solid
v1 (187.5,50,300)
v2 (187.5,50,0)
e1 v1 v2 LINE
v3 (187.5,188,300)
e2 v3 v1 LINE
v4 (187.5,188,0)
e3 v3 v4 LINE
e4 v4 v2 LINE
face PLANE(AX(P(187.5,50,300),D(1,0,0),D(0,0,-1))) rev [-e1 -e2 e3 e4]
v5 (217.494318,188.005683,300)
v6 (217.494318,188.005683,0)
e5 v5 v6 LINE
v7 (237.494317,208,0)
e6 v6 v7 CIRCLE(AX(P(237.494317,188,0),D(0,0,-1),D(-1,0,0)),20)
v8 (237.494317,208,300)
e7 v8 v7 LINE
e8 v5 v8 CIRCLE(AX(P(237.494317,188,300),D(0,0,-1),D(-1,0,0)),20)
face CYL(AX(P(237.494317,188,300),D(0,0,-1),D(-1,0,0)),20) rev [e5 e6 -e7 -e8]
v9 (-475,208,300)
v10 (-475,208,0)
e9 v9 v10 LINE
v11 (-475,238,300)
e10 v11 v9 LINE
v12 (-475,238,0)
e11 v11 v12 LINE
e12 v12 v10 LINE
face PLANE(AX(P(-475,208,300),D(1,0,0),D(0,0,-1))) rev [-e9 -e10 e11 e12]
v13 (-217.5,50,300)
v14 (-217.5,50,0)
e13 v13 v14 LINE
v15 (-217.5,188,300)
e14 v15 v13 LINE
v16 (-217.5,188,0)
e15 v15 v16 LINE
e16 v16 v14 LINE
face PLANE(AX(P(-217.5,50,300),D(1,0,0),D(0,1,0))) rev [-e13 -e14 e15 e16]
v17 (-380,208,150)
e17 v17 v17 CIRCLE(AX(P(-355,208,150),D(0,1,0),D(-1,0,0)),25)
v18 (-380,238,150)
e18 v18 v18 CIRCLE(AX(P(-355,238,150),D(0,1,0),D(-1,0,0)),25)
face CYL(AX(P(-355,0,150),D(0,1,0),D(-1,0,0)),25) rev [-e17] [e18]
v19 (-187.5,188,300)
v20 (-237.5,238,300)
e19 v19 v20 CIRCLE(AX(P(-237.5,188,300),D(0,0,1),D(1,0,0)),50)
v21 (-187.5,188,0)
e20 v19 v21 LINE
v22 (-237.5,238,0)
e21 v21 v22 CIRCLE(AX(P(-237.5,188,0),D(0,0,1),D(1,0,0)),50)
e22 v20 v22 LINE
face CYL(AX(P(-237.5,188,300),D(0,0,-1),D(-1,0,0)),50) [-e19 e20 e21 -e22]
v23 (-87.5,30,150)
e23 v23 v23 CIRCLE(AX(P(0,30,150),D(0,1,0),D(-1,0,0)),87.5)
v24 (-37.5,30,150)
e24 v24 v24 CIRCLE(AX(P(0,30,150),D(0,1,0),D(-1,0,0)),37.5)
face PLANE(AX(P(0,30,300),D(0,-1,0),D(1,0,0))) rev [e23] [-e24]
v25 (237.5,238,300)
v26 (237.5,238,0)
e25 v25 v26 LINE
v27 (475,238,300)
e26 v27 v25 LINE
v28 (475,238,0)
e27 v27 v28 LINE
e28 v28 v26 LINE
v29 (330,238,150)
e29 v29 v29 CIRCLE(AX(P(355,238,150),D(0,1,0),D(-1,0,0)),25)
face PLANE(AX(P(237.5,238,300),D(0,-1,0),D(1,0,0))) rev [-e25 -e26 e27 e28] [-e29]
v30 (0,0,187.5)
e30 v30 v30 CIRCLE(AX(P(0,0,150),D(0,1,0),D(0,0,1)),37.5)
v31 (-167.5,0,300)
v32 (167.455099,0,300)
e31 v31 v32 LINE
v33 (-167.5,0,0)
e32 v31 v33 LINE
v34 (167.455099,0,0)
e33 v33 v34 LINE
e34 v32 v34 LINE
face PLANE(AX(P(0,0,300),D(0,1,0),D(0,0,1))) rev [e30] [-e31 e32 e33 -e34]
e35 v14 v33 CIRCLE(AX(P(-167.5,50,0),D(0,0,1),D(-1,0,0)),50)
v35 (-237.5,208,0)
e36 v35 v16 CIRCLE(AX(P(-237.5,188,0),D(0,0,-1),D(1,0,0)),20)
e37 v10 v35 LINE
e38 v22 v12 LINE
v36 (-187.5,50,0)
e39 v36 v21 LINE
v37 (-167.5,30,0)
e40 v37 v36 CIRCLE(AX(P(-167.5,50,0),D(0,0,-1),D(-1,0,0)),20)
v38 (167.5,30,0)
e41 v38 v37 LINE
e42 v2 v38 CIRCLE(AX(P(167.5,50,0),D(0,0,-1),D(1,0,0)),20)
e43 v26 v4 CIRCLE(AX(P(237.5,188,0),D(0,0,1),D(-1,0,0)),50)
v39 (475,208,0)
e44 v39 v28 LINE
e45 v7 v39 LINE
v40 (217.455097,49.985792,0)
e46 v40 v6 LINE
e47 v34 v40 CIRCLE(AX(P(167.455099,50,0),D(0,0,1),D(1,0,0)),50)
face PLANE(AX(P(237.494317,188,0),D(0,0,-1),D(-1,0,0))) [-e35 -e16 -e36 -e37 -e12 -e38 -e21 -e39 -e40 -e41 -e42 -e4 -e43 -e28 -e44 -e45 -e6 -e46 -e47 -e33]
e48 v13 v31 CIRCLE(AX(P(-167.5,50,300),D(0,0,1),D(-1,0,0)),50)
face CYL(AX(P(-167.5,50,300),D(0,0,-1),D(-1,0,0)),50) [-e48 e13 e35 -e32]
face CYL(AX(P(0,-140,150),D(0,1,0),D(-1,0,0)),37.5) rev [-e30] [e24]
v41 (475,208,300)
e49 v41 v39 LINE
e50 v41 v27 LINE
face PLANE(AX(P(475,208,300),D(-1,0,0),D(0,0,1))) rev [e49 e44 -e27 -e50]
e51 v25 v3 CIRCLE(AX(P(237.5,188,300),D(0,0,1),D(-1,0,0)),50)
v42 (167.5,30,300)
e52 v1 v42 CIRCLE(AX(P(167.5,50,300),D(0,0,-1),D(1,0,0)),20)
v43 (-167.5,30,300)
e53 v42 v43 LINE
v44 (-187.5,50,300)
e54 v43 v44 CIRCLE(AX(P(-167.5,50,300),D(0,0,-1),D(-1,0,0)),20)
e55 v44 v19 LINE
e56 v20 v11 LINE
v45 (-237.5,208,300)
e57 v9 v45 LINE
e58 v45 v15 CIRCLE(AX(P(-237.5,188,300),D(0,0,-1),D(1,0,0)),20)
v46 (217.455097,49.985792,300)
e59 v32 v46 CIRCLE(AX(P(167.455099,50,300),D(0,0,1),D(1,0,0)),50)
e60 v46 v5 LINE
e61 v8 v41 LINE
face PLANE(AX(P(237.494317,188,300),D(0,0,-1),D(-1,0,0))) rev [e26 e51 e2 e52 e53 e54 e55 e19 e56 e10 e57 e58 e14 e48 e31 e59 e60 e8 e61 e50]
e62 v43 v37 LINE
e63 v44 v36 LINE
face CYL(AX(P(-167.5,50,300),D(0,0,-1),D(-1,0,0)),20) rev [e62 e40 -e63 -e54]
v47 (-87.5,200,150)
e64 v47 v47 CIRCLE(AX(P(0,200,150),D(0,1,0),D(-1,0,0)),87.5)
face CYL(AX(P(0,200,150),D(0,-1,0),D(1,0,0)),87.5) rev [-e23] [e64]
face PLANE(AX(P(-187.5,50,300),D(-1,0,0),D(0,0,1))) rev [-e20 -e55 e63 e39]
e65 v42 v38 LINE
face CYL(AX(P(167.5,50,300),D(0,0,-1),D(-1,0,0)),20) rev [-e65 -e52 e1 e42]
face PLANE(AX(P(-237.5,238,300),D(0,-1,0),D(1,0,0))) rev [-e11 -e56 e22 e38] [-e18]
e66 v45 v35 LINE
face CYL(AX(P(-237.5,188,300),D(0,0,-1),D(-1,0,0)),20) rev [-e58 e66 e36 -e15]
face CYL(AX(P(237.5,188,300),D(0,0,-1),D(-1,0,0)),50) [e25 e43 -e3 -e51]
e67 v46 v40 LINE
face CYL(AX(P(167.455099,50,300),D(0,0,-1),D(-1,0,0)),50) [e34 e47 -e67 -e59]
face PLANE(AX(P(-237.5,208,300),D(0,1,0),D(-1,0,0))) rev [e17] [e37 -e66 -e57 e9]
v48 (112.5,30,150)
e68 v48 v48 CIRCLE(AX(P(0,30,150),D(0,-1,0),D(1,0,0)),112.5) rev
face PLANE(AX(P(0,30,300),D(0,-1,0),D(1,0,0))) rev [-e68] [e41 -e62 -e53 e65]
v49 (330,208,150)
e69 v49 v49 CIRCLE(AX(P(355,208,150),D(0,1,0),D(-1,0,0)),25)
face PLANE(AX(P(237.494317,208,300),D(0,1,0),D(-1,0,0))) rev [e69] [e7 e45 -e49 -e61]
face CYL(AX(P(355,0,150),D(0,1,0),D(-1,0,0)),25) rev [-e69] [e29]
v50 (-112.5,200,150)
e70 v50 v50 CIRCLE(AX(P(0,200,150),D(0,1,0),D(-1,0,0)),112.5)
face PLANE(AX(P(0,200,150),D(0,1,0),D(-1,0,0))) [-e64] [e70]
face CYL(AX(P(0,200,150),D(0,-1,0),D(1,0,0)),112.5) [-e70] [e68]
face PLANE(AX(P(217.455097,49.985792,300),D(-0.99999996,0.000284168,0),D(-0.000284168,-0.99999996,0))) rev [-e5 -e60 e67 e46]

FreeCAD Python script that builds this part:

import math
import FreeCAD as App
import Part
import Sketcher
from FreeCAD import Vector
Q = App.Units.Quantity

doc = App.newDocument("Part")
body = doc.addObject("PartDesign::Body", "Body")

# Sketch on XY plane
sketch1 = body.newObject("Sketcher::SketchObject", "Sketch")
sketch1.AttachmentSupport = (doc.getObject("XY_Plane"), [""])
sketch1.MapMode = "FlatFace"
sketch1.addGeometry([
    Part.ArcOfCircle(Part.Circle(Vector(-167.5, 50, 0), Vector(0, 0, 1), 50), math.radians(-180), math.radians(-90)),  # 0
    Part.LineSegment(Vector(-167.5, 0, 0), Vector(167.455099, 0, 0)),  # 1
    Part.ArcOfCircle(Part.Circle(Vector(167.455099, 50, 0), Vector(0, 0, 1), 50), math.radians(-90), math.radians(-0.016282)),  # 2
    Part.LineSegment(Vector(217.455097, 49.985792, 0), Vector(217.494318, 188.005683, 0)),  # 3
    Part.ArcOfCircle(Part.Circle(Vector(237.494317, 188, 0), Vector(0, 0, 1), 20), math.radians(90), math.radians(179.983718)),  # 4
    Part.LineSegment(Vector(237.494317, 208, 0), Vector(475, 208, 0)),  # 5
    Part.LineSegment(Vector(475, 208, 0), Vector(475, 238, 0)),  # 6
    Part.LineSegment(Vector(475, 238, 0), Vector(237.5, 238, 0)),  # 7
    Part.ArcOfCircle(Part.Circle(Vector(237.5, 188, 0), Vector(0, 0, 1), 50), math.radians(90), math.radians(180)),  # 8
    Part.LineSegment(Vector(187.5, 188, 0), Vector(187.5, 50, 0)),  # 9
    Part.ArcOfCircle(Part.Circle(Vector(167.5, 50, 0), Vector(0, 0, 1), 20), math.radians(-90), math.radians(0)),  # 10
    Part.LineSegment(Vector(167.5, 30, 0), Vector(-167.5, 30, 0)),  # 11
    Part.ArcOfCircle(Part.Circle(Vector(-167.5, 50, 0), Vector(0, 0, 1), 20), math.radians(180), math.radians(270)),  # 12
    Part.LineSegment(Vector(-187.5, 50, 0), Vector(-187.5, 188, 0)),  # 13
    Part.ArcOfCircle(Part.Circle(Vector(-237.5, 188, 0), Vector(0, 0, 1), 50), math.radians(0), math.radians(90)),  # 14
    Part.LineSegment(Vector(-237.5, 238, 0), Vector(-475, 238, 0)),  # 15
    Part.LineSegment(Vector(-475, 238, 0), Vector(-475, 208, 0)),  # 16
    Part.LineSegment(Vector(-475, 208, 0), Vector(-237.5, 208, 0)),  # 17
    Part.ArcOfCircle(Part.Circle(Vector(-237.5, 188, 0), Vector(0, 0, 1), 20), math.radians(0), math.radians(90)),  # 18
    Part.LineSegment(Vector(-217.5, 188, 0), Vector(-217.5, 50, 0)),  # 19
], False)
sketch1.addConstraint([
    Sketcher.Constraint("Tangent", 0, 2, 1, 1),
    Sketcher.Constraint("Tangent", 1, 2, 2, 1),
    Sketcher.Constraint("Tangent", 2, 2, 3, 1),
    Sketcher.Constraint("Tangent", 3, 2, 4, 2),
    Sketcher.Constraint("Tangent", 4, 1, 5, 1),
    Sketcher.Constraint("Coincident", 5, 2, 6, 1),
    Sketcher.Constraint("Coincident", 6, 2, 7, 1),
    Sketcher.Constraint("Tangent", 7, 2, 8, 1),
    Sketcher.Constraint("Tangent", 8, 2, 9, 1),
    Sketcher.Constraint("Tangent", 9, 2, 10, 2),
    Sketcher.Constraint("Tangent", 10, 1, 11, 1),
    Sketcher.Constraint("Tangent", 11, 2, 12, 2),
    Sketcher.Constraint("Tangent", 12, 1, 13, 1),
    Sketcher.Constraint("Tangent", 13, 2, 14, 1),
    Sketcher.Constraint("Tangent", 14, 2, 15, 1),
    Sketcher.Constraint("Coincident", 15, 2, 16, 1),
    Sketcher.Constraint("Coincident", 16, 2, 17, 1),
    Sketcher.Constraint("Tangent", 17, 2, 18, 2),
    Sketcher.Constraint("Tangent", 18, 1, 19, 1),
    Sketcher.Constraint("Tangent", 19, 2, 0, 1),
    Sketcher.Constraint("Horizontal", 1),
    Sketcher.Constraint("Horizontal", 5),
    Sketcher.Constraint("Vertical", 6),
    Sketcher.Constraint("Horizontal", 7),
    Sketcher.Constraint("Vertical", 9),
    Sketcher.Constraint("Horizontal", 11),
    Sketcher.Constraint("Vertical", 13),
    Sketcher.Constraint("Horizontal", 15),
    Sketcher.Constraint("Vertical", 16),
    Sketcher.Constraint("Horizontal", 17),
    Sketcher.Constraint("Vertical", 19),
    Sketcher.Constraint("Coincident", 12, 3, 0, 3),
    Sketcher.Constraint("Coincident", 18, 3, 14, 3),
    Sketcher.Constraint("Equal", 0, 2),
    Sketcher.Constraint("Equal", 2, 8),
    Sketcher.Constraint("Equal", 4, 10),
    Sketcher.Constraint("Equal", 10, 12),
    Sketcher.Constraint("Equal", 8, 14),
    Sketcher.Constraint("Symmetric", 8, 3, 14, 3, -2),
    Sketcher.Constraint("Symmetric", 5, 2, 16, 2, -2),
    Sketcher.Constraint("PointOnObject", 0, 2, -1),
    Sketcher.Constraint("Radius", 0, Q("50 mm")),
    Sketcher.Constraint("Radius", 4, Q("20 mm")),
    Sketcher.Constraint("DistanceX", 11, 2, 11, 1, Q("335 mm")),
    Sketcher.Constraint("DistanceY", 9, 2, 9, 1, Q("138 mm")),
    Sketcher.Constraint("DistanceX", 7, 2, 7, 1, Q("237.5 mm")),
    Sketcher.Constraint("DistanceX", 1, 1, 1, 2, Q("334.955099 mm")),
    Sketcher.Constraint("DistanceX", 5, 1, 5, 2, Q("237.505683 mm")),
])
pad1 = body.newObject("PartDesign::Pad", "Pad")
pad1.Profile = sketch1
pad1.Length = 300

# Sketch on XZ plane
sketch2 = body.newObject("Sketcher::SketchObject", "Sketch001")
sketch2.AttachmentSupport = (doc.getObject("XZ_Plane"), [""])
sketch2.MapMode = "FlatFace"
sketch2.AttachmentOffset = App.Placement(Vector(0, 0, -238), App.Rotation())
sketch2.addGeometry(Part.Circle(Vector(355, 150, 0), Vector(0, 0, 1), 25), False)
sketch2.addConstraint([
    Sketcher.Constraint("Diameter", 0, Q("50 mm")),
    Sketcher.Constraint("DistanceX", -1, 1, 0, 3, Q("355 mm")),
    Sketcher.Constraint("DistanceY", -1, 1, 0, 3, Q("150 mm")),
])
pocket1 = body.newObject("PartDesign::Pocket", "Pocket")
pocket1.Profile = sketch2
pocket1.Type = "ThroughAll"
pocket1.Reversed = True
doc.recompute()

linearpattern = body.newObject("PartDesign::LinearPattern", "LinearPattern")
linearpattern.Originals = [pocket1]
linearpattern.Direction = (doc.getObject("X_Axis"), [""])
linearpattern.Mode = "offset"
linearpattern.Offset = 710
linearpattern.Occurrences = 2
linearpattern.Reversed = True
body.Tip = linearpattern

# Sketch on XZ plane
sketch3 = body.newObject("Sketcher::SketchObject", "Sketch002")
sketch3.AttachmentSupport = (doc.getObject("XZ_Plane"), [""])
sketch3.MapMode = "FlatFace"
sketch3.AttachmentOffset = App.Placement(Vector(0, 0, -30), App.Rotation())
sketch3.addGeometry([
    Part.Circle(Vector(0, 150, 0), Vector(0, 0, 1), 112.5),
    Part.Circle(Vector(0, 150, 0), Vector(0, 0, 1), 87.5),
], False)
sketch3.addConstraint([
    Sketcher.Constraint("Coincident", 1, 3, 0, 3),
    Sketcher.Constraint("PointOnObject", 0, 3, -2),
    Sketcher.Constraint("Diameter", 0, Q("225 mm")),
    Sketcher.Constraint("Diameter", 1, Q("175 mm")),
    Sketcher.Constraint("DistanceY", -1, 1, 0, 3, Q("150 mm")),
])
pad2 = body.newObject("PartDesign::Pad", "Pad001")
pad2.Profile = sketch3
pad2.Length = 170
pad2.Reversed = True

# Sketch on XZ plane
sketch4 = body.newObject("Sketcher::SketchObject", "Sketch003")
sketch4.AttachmentSupport = (doc.getObject("XZ_Plane"), [""])
sketch4.MapMode = "FlatFace"
sketch4.AttachmentOffset = App.Placement(Vector(0, 0, -30), App.Rotation())
sketch4.addGeometry(Part.Circle(Vector(0, 150, 0), Vector(0, 0, 1), 37.5), False)
sketch4.addConstraint([
    Sketcher.Constraint("PointOnObject", 0, 3, -2),
    Sketcher.Constraint("Diameter", 0, Q("75 mm")),
    Sketcher.Constraint("DistanceY", -1, 1, 0, 3, Q("150 mm")),
])
pocket2 = body.newObject("PartDesign::Pocket", "Pocket001")
pocket2.Profile = sketch4
pocket2.Length = 170
pocket2.Reversed = True

doc.recompute()
